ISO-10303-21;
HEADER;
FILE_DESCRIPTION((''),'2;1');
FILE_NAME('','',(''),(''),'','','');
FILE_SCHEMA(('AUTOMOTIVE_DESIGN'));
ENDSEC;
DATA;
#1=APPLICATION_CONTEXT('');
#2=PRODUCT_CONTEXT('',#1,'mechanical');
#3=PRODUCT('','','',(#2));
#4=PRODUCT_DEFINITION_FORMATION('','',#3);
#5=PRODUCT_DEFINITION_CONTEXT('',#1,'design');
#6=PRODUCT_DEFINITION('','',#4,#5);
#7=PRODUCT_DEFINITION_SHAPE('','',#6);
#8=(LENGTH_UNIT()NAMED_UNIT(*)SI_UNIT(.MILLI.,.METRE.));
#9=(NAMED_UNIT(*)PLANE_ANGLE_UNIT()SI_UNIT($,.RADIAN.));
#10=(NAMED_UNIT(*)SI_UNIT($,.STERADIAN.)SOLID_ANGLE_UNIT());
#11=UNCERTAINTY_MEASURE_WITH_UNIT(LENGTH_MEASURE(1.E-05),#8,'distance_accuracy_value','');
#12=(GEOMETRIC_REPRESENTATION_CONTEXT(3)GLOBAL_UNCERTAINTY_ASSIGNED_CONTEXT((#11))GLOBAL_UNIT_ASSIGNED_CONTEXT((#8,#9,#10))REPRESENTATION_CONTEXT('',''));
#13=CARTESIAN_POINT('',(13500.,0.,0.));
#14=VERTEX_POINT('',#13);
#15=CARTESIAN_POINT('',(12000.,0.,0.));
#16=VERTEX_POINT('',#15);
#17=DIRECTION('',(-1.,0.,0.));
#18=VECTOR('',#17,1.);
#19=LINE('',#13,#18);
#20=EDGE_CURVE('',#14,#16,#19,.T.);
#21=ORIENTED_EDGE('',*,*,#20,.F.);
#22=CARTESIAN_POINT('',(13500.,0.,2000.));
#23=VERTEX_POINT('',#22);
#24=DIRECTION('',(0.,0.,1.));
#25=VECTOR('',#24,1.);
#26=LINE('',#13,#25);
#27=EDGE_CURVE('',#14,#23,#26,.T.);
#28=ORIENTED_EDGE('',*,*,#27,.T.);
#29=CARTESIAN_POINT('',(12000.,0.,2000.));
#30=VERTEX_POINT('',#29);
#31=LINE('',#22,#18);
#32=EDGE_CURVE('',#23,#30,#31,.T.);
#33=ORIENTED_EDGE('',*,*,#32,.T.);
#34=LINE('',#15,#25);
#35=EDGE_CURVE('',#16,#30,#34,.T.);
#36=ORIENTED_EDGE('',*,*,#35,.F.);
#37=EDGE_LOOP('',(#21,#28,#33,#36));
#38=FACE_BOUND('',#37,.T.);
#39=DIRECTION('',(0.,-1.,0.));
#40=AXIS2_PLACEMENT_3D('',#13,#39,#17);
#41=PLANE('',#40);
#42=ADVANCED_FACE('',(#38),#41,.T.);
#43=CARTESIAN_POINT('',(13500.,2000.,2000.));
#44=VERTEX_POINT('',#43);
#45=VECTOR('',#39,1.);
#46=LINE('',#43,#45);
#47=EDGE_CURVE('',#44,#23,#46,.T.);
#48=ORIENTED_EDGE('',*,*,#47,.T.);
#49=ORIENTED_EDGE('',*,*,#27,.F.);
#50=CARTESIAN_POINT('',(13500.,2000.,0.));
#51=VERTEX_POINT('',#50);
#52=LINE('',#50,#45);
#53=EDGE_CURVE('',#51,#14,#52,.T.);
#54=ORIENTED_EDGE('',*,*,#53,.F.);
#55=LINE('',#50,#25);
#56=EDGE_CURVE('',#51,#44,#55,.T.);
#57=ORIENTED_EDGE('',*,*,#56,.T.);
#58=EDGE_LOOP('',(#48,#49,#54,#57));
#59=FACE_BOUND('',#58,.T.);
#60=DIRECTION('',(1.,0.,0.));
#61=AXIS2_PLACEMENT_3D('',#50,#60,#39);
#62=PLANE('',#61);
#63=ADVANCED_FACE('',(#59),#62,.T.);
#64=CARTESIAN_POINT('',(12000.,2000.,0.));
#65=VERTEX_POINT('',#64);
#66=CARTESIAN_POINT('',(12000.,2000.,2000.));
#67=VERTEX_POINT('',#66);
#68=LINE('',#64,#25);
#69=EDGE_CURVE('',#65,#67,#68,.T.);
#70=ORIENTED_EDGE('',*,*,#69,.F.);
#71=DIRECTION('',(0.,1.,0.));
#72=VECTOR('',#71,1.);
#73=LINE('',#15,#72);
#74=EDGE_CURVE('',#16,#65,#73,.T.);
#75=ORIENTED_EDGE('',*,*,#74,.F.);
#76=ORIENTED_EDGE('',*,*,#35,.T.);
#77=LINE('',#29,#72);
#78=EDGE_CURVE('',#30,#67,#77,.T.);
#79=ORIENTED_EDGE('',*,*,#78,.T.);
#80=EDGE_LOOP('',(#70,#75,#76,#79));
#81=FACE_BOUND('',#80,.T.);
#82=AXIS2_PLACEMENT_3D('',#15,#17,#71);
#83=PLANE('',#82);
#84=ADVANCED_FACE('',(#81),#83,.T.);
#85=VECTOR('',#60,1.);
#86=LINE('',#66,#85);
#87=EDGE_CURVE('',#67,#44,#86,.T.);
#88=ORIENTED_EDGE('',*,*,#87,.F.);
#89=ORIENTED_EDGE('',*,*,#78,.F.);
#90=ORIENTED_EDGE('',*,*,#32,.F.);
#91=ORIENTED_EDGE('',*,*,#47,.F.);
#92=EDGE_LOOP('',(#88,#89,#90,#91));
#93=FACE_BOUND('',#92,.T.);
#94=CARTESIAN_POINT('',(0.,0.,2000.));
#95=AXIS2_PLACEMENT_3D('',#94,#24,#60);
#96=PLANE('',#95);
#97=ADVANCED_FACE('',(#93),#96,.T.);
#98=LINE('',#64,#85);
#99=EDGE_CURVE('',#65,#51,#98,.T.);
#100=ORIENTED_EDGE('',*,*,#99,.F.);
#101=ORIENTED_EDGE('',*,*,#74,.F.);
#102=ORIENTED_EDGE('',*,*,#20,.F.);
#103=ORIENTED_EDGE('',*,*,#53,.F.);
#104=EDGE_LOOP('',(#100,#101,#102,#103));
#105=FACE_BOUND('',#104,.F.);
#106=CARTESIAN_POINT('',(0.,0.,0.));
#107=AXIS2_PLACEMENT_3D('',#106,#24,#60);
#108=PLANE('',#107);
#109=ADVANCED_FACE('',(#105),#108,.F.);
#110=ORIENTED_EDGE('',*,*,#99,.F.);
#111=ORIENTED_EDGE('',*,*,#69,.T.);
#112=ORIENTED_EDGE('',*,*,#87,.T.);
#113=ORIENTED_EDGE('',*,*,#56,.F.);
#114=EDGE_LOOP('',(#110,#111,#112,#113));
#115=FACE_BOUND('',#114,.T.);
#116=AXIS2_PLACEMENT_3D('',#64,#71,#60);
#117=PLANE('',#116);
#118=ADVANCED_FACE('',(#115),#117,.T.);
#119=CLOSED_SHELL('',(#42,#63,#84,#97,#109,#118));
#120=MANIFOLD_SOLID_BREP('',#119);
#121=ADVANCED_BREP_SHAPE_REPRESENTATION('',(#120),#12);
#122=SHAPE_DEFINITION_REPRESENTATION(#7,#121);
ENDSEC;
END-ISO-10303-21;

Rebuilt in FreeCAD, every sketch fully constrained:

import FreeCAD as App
import Part
import Sketcher
Q = App.Units.Quantity


def add_polygon(sketch, points):
    """Adds a closed chain of lines whose ends are joined by coincident constraints."""
    first, n = sketch.GeometryCount, len(points)
    for a, b in zip(points, points[1:] + points[:1]):
        sketch.addGeometry(Part.LineSegment(App.Vector(*a, 0), App.Vector(*b, 0)), False)
    for i in range(n):
        sketch.addConstraint(Sketcher.Constraint("Coincident", first + i, 2, first + (i + 1) % n, 1))

doc = App.newDocument("Part")
params = doc.addObject("Spreadsheet::Sheet", "Params")
for row, (alias, value) in enumerate([
    ("sketch1_width", "1500 mm"),
    ("sketch1_height", "2000 mm"),
    ("pad1_length", "2000 mm"),
], start=1):
    params.set(f"A{row}", alias)
    params.set(f"B{row}", "=" + value)
    params.setAlias(f"B{row}", alias)

body = doc.addObject("PartDesign::Body", "Body")

# Sketch on XY plane
sketch1 = body.newObject("Sketcher::SketchObject", "Sketch")
sketch1.AttachmentSupport = (doc.getObject("XY_Plane"), [""])
sketch1.MapMode = "FlatFace"
add_polygon(sketch1, [(13500, 2000), (12000, 2000), (12000, 0), (13500, 0)])  # lines 0-3
sketch1.addConstraint([
    Sketcher.Constraint("Horizontal", 0),
    Sketcher.Constraint("Vertical", 1),
    Sketcher.Constraint("Horizontal", 2),
    Sketcher.Constraint("Vertical", 3),
    Sketcher.Constraint("PointOnObject", 1, 2, -1),
    Sketcher.Constraint("DistanceX", 0, 2, 0, 1, Q("1500 mm")),
    Sketcher.Constraint("DistanceY", 1, 2, 1, 1, Q("2000 mm")),
    Sketcher.Constraint("DistanceX", -1, 1, 0, 2, Q("12000 mm")),
])
sketch1.setExpression("Constraints[9]", "Params.sketch1_width")
sketch1.setExpression("Constraints[10]", "Params.sketch1_height")
pad1 = body.newObject("PartDesign::Pad", "Pad")
pad1.Profile = sketch1
pad1.setExpression("Length", "Params.pad1_length")

doc.recompute()
